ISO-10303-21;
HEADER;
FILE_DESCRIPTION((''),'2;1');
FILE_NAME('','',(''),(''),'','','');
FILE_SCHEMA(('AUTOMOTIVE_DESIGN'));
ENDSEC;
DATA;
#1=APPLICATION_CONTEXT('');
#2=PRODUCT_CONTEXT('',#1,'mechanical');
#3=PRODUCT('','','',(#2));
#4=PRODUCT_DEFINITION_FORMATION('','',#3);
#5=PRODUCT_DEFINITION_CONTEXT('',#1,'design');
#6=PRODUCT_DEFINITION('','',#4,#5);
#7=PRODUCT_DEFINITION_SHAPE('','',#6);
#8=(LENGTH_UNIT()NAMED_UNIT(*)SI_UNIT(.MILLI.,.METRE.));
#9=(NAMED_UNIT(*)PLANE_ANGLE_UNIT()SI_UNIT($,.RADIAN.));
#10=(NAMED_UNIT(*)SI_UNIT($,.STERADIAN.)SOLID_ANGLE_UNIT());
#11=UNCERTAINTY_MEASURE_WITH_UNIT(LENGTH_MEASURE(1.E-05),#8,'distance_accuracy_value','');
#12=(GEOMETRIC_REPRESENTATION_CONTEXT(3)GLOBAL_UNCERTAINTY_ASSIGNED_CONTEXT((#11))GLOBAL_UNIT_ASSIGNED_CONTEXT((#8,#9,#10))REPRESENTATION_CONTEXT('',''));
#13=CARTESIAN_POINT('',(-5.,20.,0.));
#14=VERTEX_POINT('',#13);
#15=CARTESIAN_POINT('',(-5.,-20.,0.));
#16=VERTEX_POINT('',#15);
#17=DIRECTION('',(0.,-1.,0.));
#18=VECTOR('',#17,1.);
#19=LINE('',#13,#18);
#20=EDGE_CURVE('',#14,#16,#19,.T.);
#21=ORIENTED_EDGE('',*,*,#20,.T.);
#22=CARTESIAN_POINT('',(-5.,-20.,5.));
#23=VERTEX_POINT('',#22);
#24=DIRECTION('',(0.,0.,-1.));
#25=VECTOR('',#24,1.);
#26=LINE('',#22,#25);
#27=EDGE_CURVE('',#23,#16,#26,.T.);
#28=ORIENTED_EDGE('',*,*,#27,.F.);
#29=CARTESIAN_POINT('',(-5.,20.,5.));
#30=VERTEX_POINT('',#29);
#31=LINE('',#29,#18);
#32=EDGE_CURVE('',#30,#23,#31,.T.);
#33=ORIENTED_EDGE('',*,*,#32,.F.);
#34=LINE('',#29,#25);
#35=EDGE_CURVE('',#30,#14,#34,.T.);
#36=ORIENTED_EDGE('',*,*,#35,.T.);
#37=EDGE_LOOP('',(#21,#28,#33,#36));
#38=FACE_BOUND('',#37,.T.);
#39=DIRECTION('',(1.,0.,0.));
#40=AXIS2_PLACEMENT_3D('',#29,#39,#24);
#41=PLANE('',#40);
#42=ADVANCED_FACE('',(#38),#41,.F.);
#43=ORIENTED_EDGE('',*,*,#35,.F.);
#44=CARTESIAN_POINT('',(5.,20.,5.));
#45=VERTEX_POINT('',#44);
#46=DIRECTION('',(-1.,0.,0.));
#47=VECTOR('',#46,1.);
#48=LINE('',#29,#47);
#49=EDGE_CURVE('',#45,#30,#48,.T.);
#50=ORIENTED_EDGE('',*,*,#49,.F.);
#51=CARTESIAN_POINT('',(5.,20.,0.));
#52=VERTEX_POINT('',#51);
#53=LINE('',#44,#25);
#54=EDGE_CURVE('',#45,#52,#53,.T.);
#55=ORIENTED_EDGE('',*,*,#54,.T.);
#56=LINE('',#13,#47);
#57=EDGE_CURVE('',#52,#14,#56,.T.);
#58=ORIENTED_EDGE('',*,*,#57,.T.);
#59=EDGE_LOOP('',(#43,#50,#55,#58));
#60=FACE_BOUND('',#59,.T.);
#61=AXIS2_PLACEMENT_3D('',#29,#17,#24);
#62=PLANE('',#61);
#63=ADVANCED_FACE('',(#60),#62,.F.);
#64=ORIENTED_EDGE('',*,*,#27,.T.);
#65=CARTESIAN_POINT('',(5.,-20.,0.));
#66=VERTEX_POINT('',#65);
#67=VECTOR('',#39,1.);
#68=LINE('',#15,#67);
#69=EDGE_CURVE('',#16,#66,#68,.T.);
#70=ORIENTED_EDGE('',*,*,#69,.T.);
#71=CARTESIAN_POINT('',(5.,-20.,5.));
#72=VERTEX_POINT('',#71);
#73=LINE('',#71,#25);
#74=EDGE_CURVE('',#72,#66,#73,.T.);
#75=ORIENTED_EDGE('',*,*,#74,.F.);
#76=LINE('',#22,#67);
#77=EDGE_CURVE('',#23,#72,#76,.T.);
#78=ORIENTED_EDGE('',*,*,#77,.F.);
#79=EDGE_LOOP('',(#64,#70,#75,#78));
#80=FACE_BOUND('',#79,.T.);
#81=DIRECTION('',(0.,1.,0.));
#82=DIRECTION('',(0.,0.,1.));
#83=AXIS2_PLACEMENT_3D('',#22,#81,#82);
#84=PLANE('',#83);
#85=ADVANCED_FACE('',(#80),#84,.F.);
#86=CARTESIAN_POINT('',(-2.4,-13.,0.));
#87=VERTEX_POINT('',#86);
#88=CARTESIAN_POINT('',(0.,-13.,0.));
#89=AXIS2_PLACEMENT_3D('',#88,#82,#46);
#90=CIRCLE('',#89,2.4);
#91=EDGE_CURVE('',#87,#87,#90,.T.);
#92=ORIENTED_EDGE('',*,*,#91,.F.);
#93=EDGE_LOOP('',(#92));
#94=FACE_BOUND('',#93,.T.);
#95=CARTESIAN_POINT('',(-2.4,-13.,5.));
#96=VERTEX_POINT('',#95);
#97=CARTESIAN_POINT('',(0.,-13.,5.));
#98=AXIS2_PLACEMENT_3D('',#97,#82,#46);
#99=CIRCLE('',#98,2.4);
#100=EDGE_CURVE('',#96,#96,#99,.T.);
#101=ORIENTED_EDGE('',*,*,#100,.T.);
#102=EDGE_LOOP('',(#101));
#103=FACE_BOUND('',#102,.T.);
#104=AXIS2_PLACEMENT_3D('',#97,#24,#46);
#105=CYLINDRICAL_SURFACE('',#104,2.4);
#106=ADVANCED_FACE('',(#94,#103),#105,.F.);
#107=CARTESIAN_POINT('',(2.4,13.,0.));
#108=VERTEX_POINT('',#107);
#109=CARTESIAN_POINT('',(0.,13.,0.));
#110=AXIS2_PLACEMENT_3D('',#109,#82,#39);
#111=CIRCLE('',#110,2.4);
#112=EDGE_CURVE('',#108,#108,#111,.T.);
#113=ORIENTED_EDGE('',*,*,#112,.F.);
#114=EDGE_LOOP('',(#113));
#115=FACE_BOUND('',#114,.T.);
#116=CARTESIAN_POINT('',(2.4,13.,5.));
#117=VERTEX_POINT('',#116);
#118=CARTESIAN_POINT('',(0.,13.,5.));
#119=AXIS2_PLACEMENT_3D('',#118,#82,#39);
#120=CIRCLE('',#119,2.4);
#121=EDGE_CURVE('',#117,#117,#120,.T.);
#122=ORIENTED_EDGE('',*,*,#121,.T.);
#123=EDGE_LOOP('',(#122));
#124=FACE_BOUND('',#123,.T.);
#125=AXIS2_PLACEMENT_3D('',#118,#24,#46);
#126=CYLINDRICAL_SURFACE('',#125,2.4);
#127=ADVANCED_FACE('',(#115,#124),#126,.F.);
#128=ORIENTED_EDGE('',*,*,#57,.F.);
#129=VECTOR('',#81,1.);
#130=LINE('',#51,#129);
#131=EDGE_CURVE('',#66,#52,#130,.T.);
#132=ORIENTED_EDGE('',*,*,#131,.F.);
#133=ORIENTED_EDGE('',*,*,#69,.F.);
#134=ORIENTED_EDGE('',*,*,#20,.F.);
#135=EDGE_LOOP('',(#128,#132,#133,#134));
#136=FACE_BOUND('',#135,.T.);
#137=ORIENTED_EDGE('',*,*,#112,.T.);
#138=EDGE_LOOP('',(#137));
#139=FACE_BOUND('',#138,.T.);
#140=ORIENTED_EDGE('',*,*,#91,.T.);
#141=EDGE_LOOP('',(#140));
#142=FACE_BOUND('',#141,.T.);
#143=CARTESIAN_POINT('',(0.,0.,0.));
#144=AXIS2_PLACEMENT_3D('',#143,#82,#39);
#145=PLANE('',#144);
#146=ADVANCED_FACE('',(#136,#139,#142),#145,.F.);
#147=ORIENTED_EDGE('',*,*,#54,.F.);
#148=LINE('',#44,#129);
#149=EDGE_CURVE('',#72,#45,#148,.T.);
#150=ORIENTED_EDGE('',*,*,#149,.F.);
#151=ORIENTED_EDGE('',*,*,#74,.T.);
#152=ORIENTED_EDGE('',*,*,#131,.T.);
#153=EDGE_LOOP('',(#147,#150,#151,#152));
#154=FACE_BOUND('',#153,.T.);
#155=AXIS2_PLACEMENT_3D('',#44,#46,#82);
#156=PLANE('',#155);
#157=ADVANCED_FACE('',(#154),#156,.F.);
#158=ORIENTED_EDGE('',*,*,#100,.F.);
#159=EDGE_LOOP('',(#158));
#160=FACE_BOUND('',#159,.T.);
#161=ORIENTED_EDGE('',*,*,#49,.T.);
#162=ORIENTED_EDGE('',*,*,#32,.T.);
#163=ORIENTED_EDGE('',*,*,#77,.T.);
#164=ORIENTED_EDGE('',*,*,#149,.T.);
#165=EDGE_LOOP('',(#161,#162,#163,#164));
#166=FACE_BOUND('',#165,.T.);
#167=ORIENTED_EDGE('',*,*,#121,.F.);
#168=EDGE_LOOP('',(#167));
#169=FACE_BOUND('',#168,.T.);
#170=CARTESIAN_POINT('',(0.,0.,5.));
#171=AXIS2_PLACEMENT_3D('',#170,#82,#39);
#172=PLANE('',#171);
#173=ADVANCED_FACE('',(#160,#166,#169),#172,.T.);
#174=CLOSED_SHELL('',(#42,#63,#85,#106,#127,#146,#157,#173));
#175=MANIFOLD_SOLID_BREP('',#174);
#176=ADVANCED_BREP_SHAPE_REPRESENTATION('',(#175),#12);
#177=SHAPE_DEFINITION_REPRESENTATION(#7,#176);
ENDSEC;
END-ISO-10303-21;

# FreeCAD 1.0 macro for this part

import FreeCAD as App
import Part
import Sketcher

V = App.Vector
Q = App.Units.Quantity

doc = App.newDocument("Part")
body = doc.addObject("PartDesign::Body", "Body")

sketch1 = body.newObject("Sketcher::SketchObject", "Sketch")
sketch1.AttachmentSupport = (doc.getObject("XY_Plane"), [""])
sketch1.MapMode = "FlatFace"
sketch1.addGeometry(Part.LineSegment(V(-5, 20, 0), V(-5, -20, 0)), False)
sketch1.addGeometry(Part.LineSegment(V(-5, -20, 0), V(5, -20, 0)), False)
sketch1.addGeometry(Part.LineSegment(V(5, -20, 0), V(5, 20, 0)), False)
sketch1.addGeometry(Part.LineSegment(V(5, 20, 0), V(-5, 20, 0)), False)
sketch1.addGeometry(Part.Circle(V(0, -13, 0), V(0, 0, 1), 2.4), False)
sketch1.addGeometry(Part.Circle(V(0, 13, 0), V(0, 0, 1), 2.4), False)
sketch1.addConstraint(Sketcher.Constraint("Coincident", 0, 2, 1, 1))
sketch1.addConstraint(Sketcher.Constraint("Coincident", 1, 2, 2, 1))
sketch1.addConstraint(Sketcher.Constraint("Coincident", 2, 2, 3, 1))
sketch1.addConstraint(Sketcher.Constraint("Coincident", 3, 2, 0, 1))
sketch1.addConstraint(Sketcher.Constraint("Vertical", 0))
sketch1.addConstraint(Sketcher.Constraint("Horizontal", 1))
sketch1.addConstraint(Sketcher.Constraint("Vertical", 2))
sketch1.addConstraint(Sketcher.Constraint("Horizontal", 3))
sketch1.addConstraint(Sketcher.Constraint("Equal", 4, 5))
sketch1.addConstraint(Sketcher.Constraint("Symmetric", 4, 3, 5, 3, -1, 1))
sketch1.addConstraint(Sketcher.Constraint("Symmetric", 0, 2, 2, 2, -1, 1))
sketch1.addConstraint(Sketcher.Constraint("PointOnObject", 4, 3, -2))
sketch1.addConstraint(Sketcher.Constraint("Diameter", 4, Q("4.8 mm")))
sketch1.addConstraint(Sketcher.Constraint("DistanceX", 1, 1, 1, 2, Q("10 mm")))
sketch1.addConstraint(Sketcher.Constraint("DistanceY", 0, 2, 0, 1, Q("40 mm")))
sketch1.addConstraint(Sketcher.Constraint("DistanceY", 4, 3, -1, 1, Q("13 mm")))
pad1 = body.newObject("PartDesign::Pad", "Pad")
pad1.Profile = sketch1
pad1.Length = 5

doc.recompute()
